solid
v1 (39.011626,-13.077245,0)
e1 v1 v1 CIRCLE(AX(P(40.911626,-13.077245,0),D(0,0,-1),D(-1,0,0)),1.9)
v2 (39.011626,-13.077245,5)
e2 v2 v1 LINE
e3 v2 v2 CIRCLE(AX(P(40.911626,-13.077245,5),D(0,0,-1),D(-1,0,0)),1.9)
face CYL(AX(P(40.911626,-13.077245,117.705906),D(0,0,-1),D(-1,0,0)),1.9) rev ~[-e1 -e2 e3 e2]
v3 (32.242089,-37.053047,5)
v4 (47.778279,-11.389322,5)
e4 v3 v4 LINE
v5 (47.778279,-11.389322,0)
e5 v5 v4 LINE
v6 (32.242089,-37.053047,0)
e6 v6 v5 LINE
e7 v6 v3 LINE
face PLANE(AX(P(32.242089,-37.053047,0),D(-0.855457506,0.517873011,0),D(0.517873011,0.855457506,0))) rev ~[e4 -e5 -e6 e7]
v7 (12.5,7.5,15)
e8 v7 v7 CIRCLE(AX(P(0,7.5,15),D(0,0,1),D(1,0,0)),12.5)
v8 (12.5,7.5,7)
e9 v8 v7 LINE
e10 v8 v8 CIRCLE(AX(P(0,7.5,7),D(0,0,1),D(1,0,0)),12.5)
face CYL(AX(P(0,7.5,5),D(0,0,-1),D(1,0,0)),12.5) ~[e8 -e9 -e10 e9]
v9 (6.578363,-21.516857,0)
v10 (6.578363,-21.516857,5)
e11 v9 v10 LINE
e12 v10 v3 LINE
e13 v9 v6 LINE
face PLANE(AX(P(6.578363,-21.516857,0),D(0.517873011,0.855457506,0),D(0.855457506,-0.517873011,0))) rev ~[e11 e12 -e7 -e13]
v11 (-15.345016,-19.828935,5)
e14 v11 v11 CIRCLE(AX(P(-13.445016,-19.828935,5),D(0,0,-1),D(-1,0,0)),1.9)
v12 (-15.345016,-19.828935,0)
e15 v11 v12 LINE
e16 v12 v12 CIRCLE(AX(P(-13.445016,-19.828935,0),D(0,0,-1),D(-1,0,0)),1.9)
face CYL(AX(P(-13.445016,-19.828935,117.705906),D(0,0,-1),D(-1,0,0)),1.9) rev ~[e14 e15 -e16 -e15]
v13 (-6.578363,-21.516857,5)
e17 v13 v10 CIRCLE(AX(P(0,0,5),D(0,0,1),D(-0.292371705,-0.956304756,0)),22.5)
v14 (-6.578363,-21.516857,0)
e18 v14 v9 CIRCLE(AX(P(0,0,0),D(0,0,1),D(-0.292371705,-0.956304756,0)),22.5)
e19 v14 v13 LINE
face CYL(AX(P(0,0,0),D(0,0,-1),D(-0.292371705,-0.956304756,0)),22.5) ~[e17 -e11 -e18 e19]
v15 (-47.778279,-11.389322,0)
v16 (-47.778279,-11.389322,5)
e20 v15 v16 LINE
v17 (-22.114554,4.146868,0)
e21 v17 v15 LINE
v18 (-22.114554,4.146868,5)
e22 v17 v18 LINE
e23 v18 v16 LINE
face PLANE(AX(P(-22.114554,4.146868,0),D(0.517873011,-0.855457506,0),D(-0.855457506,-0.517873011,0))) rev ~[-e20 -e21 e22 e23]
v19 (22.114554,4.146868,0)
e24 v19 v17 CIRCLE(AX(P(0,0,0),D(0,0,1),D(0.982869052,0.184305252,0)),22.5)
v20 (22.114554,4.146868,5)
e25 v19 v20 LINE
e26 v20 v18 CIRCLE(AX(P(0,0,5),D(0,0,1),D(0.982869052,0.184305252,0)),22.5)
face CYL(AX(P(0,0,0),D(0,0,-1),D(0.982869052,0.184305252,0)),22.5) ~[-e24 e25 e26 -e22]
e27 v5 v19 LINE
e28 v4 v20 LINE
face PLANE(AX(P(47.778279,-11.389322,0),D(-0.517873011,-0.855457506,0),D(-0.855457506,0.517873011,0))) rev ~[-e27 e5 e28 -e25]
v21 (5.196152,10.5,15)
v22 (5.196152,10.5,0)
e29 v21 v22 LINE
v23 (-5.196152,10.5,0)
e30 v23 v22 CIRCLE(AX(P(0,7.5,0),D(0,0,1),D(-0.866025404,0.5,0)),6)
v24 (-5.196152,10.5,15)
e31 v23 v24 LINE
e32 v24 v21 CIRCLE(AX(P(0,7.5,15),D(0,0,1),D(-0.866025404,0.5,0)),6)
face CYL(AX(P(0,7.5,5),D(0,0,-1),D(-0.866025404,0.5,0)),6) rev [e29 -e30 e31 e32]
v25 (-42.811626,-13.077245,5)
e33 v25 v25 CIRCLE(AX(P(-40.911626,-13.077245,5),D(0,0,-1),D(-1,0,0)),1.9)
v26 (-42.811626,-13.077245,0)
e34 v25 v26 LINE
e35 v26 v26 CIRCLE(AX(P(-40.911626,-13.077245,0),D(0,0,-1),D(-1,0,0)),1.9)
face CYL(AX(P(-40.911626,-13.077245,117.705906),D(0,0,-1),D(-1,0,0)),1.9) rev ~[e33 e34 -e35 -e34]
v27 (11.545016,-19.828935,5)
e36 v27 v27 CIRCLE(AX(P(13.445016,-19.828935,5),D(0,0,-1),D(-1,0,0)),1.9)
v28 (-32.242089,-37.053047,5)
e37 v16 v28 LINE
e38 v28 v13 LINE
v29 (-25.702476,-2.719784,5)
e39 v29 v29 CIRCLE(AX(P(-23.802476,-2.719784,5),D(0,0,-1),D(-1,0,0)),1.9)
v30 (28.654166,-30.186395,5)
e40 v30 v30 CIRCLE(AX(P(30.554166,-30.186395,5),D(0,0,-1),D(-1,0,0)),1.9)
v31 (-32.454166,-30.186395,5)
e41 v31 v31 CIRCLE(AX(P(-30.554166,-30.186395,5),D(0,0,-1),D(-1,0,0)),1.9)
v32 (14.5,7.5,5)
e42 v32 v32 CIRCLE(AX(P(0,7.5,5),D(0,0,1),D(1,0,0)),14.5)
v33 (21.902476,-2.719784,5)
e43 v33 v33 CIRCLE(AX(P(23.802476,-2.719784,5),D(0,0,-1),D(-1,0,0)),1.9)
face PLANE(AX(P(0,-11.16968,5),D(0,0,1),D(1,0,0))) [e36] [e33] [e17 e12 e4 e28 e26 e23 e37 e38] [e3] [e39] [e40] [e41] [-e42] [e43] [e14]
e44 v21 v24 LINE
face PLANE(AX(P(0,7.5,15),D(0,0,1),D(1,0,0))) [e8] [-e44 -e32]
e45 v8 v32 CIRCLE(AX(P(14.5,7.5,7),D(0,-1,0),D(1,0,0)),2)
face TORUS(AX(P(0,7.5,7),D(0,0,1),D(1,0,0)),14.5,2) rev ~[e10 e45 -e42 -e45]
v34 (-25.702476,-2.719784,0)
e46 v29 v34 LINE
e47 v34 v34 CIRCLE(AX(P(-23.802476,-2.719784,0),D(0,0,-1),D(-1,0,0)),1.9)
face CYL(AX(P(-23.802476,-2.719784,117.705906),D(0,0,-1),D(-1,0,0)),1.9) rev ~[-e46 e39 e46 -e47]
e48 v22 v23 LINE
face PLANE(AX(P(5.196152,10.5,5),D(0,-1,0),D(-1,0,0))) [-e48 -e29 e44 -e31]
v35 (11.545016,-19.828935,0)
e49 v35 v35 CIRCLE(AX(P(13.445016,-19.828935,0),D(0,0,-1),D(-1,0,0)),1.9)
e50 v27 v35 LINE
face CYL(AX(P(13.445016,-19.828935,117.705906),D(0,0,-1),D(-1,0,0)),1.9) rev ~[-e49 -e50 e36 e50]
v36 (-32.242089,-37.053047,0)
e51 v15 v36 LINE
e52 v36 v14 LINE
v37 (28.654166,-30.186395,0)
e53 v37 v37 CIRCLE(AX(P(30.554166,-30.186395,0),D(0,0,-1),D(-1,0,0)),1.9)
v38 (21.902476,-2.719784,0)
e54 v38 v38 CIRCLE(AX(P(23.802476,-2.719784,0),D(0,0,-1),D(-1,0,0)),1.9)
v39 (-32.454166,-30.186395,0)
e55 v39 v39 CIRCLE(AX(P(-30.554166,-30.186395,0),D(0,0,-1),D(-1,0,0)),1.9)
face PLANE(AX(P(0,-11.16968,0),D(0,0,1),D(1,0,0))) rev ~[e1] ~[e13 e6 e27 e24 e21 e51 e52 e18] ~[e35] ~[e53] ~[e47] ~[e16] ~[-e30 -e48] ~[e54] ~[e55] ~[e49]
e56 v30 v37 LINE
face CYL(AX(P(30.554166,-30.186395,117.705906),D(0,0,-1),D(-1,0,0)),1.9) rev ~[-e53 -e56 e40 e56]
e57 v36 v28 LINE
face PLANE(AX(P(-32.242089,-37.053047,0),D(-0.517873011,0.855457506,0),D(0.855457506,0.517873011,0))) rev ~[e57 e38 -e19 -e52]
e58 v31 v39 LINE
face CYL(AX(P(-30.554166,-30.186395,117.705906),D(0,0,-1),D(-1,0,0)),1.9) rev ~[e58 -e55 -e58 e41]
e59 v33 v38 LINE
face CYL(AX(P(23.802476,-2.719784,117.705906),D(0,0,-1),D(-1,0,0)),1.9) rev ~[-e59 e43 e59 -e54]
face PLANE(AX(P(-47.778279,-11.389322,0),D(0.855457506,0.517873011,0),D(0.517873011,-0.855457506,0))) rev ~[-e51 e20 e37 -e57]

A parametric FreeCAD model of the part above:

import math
import FreeCAD as App
import Part
import Sketcher

V = App.Vector


def edges_at(feature, points):
    """Names of the edges that pass closest to the given points."""
    edges = feature.Shape.Edges
    near = lambda p: min(range(len(edges)), key=lambda i: edges[i].distToShape(Part.Vertex(*p))[0])
    return sorted({f"Edge{near(p) + 1}" for p in points})

doc = App.newDocument("Part")
params = doc.addObject("Spreadsheet::Sheet", "Params")
for row, (alias, value) in enumerate([
    ("sketch1_radius", "6 mm"),
    ("sketch1_radius2", "22.5 mm"),
    ("sketch1_length", "30 mm"),
    ("pad1_length", "5 mm"),
    ("sketch2_diameter", "3.8 mm"),
    ("hole_diameter", "3.8 mm"),
    ("sketch3_diameter", "25 mm"),
    ("sketch3_radius", "6 mm"),
    ("pad2_length", "10 mm"),
    ("fillet_radius", "2 mm"),
], start=1):
    params.set(f"A{row}", alias)
    params.set(f"B{row}", "=" + value)
    params.setAlias(f"B{row}", alias)

body = doc.addObject("PartDesign::Body", "Body")

# Sketch on XY plane
sketch1 = doc.addObject("Sketcher::SketchObject", "Sketch")
body.addObject(sketch1)
sketch1.AttachmentSupport = (doc.XY_Plane, [""])
sketch1.MapMode = "FlatFace"
sketch1.addGeometry([
    Part.LineSegment(V(7, -22, 0), V(32, -37, 0)),  # 0
    Part.LineSegment(V(32, -37, 0), V(48, -11, 0)),  # 1
    Part.LineSegment(V(48, -11, 0), V(22, 4, 0)),  # 2
    Part.ArcOfCircle(Part.Circle(V(0, 0, 0), V(0, 0, 1), 22), math.radians(11), math.radians(169)),  # 3
    Part.LineSegment(V(-22, 4, 0), V(-48, -11, 0)),  # 4
    Part.LineSegment(V(-48, -11, 0), V(-32, -37, 0)),  # 5
    Part.LineSegment(V(-32, -37, 0), V(-7, -22, 0)),  # 6
    Part.ArcOfCircle(Part.Circle(V(0, 0, 0), V(0, 0, 1), 22), math.radians(-107), math.radians(-73)),  # 7
    Part.LineSegment(V(-5, 10, 0), V(5, 10, 0)),  # 8
    Part.ArcOfCircle(Part.Circle(V(0, 8, 0), V(0, 0, 1), 6), math.radians(150), math.radians(390)),  # 9
], False)
sketch1.addConstraint([
    Sketcher.Constraint("Coincident", 0, 2, 1, 1),
    Sketcher.Constraint("Coincident", 1, 2, 2, 1),
    Sketcher.Constraint("Coincident", 2, 2, 3, 1),
    Sketcher.Constraint("Coincident", 3, 2, 4, 1),
    Sketcher.Constraint("Coincident", 4, 2, 5, 1),
    Sketcher.Constraint("Coincident", 5, 2, 6, 1),
    Sketcher.Constraint("Coincident", 6, 2, 7, 1),
    Sketcher.Constraint("Coincident", 7, 2, 0, 1),
    Sketcher.Constraint("Coincident", 8, 1, 9, 1),
    Sketcher.Constraint("Coincident", 9, 2, 8, 2),
    Sketcher.Constraint("Horizontal", 8),
    Sketcher.Constraint("Coincident", 3, 3, -1, 1),
    Sketcher.Constraint("Coincident", 7, 3, -1, 1),
    Sketcher.Constraint("Equal", 3, 7),
    Sketcher.Constraint("Symmetric", 1, 2, 4, 2, -2),
    Sketcher.Constraint("Symmetric", 0, 2, 5, 2, -2),
    Sketcher.Constraint("PointOnObject", 9, 3, -2),
    Sketcher.Constraint("Perpendicular", 0, 1),
    Sketcher.Constraint("Perpendicular", 1, 2),
    Sketcher.Constraint("Perpendicular", 4, 5),
    Sketcher.Constraint("Perpendicular", 5, 6),
    Sketcher.Constraint("Equal", 0, 1),
    Sketcher.Constraint("Equal", 1, 2),
    Sketcher.Constraint("Radius", 9, 6.0),
    Sketcher.Constraint("Radius", 3, 22.5),
    Sketcher.Constraint("Distance", 0, 30.0),
    Sketcher.Constraint("DistanceY", 9, 3, 8, 1, 3.0),
    Sketcher.Constraint("DistanceY", -1, 1, 9, 3, 7.5),
    Sketcher.Constraint("DistanceX", 3, 2, 8, 1, 16.918401),
])
sketch1.setExpression("Constraints[23]", "Params.sketch1_radius")
sketch1.setExpression("Constraints[24]", "Params.sketch1_radius2")
sketch1.setExpression("Constraints[25]", "Params.sketch1_length")
pad1 = doc.addObject("PartDesign::Pad", "Pad")
body.addObject(pad1)
pad1.Profile = sketch1
pad1.setExpression("Length", "Params.pad1_length")

# Sketch on XY plane
sketch2 = doc.addObject("Sketcher::SketchObject", "Sketch001")
body.addObject(sketch2)
sketch2.AttachmentSupport = (doc.XY_Plane, [""])
sketch2.MapMode = "FlatFace"
sketch2.AttachmentOffset = App.Placement(V(0, 0, 5), App.Rotation())
sketch2.addGeometry([
    Part.Circle(V(-40.9, -13.1, 0), V(0, 0, 1), 1.9),  # 0
    Part.Circle(V(-23.8, -2.7, 0), V(0, 0, 1), 1.9),  # 1
    Part.Circle(V(-13.4, -19.8, 0), V(0, 0, 1), 1.9),  # 2
    Part.Circle(V(-30.6, -30.2, 0), V(0, 0, 1), 1.9),  # 3
    Part.Circle(V(13.4, -19.8, 0), V(0, 0, 1), 1.9),  # 4
    Part.Circle(V(23.8, -2.7, 0), V(0, 0, 1), 1.9),  # 5
    Part.Circle(V(40.9, -13.1, 0), V(0, 0, 1), 1.9),  # 6
    Part.Circle(V(30.6, -30.2, 0), V(0, 0, 1), 1.9),  # 7
], False)
sketch2.addConstraint([
    Sketcher.Constraint("Equal", 0, 1),
    Sketcher.Constraint("Equal", 1, 2),
    Sketcher.Constraint("Equal", 2, 3),
    Sketcher.Constraint("Equal", 3, 4),
    Sketcher.Constraint("Equal", 4, 5),
    Sketcher.Constraint("Equal", 5, 6),
    Sketcher.Constraint("Equal", 6, 7),
    Sketcher.Constraint("Symmetric", 2, 3, 4, 3, -2),
    Sketcher.Constraint("Symmetric", 1, 3, 5, 3, -2),
    Sketcher.Constraint("Symmetric", 0, 3, 6, 3, -2),
    Sketcher.Constraint("Symmetric", 3, 3, 7, 3, -2),
    Sketcher.Constraint("Diameter", 0, 3.8),
    Sketcher.Constraint("DistanceX", 0, 3, 1, 3, 17.10915),
    Sketcher.Constraint("DistanceY", 0, 3, 1, 3, 10.35746),
    Sketcher.Constraint("DistanceX", 1, 3, 2, 3, 10.35746),
    Sketcher.Constraint("DistanceY", 2, 3, 1, 3, 17.10915),
    Sketcher.Constraint("DistanceX", 0, 3, 3, 3, 10.35746),
    Sketcher.Constraint("DistanceY", 3, 3, 0, 3, 17.10915),
    Sketcher.Constraint("DistanceX", 2, 3, 4, 3, 26.890032),
    Sketcher.Constraint("DistanceY", 0, 3, -1, 1, 13.077245),
])
sketch2.setExpression("Constraints[11]", "Params.sketch2_diameter")
doc.recompute()
hole = doc.addObject("PartDesign::Hole", "Hole")
body.addObject(hole)
hole.Profile = sketch2
hole.ThreadType = "None"
hole.setExpression("Diameter", "Params.hole_diameter")
hole.DepthType = "ThroughAll"

# Sketch on XY plane
sketch3 = doc.addObject("Sketcher::SketchObject", "Sketch002")
body.addObject(sketch3)
sketch3.AttachmentSupport = (doc.XY_Plane, [""])
sketch3.MapMode = "FlatFace"
sketch3.AttachmentOffset = App.Placement(V(0, 0, 5), App.Rotation())
sketch3.addGeometry([
    Part.Circle(V(0, 8, 0), V(0, 0, 1), 12),
    Part.ArcOfCircle(Part.Circle(V(0, 8, 0), V(0, 0, 1), 6), math.radians(150), math.radians(390)),
    Part.LineSegment(V(-5, 10, 0), V(5, 10, 0)),
], False)
sketch3.addConstraint([
    Sketcher.Constraint("Coincident", 1, 1, 2, 1),
    Sketcher.Constraint("Coincident", 2, 2, 1, 2),
    Sketcher.Constraint("Horizontal", 2),
    Sketcher.Constraint("Coincident", 1, 3, 0, 3),
    Sketcher.Constraint("PointOnObject", 0, 3, -2),
    Sketcher.Constraint("Diameter", 0, 25.0),
    Sketcher.Constraint("Radius", 1, 6.0),
    Sketcher.Constraint("DistanceY", 0, 3, 1, 1, 3.0),
    Sketcher.Constraint("DistanceY", -1, 1, 0, 3, 7.5),
])
sketch3.setExpression("Constraints[5]", "Params.sketch3_diameter")
sketch3.setExpression("Constraints[6]", "Params.sketch3_radius")
pad2 = doc.addObject("PartDesign::Pad", "Pad001")
body.addObject(pad2)
pad2.Profile = sketch3
pad2.setExpression("Length", "Params.pad2_length")
doc.recompute()

fillet = doc.addObject("PartDesign::Fillet", "Fillet")
body.addObject(fillet)
fillet.Base = (pad2, edges_at(pad2, [(-12.5, 7.5, 5)]))
fillet.setExpression("Radius", "Params.fillet_radius")

doc.recompute()
